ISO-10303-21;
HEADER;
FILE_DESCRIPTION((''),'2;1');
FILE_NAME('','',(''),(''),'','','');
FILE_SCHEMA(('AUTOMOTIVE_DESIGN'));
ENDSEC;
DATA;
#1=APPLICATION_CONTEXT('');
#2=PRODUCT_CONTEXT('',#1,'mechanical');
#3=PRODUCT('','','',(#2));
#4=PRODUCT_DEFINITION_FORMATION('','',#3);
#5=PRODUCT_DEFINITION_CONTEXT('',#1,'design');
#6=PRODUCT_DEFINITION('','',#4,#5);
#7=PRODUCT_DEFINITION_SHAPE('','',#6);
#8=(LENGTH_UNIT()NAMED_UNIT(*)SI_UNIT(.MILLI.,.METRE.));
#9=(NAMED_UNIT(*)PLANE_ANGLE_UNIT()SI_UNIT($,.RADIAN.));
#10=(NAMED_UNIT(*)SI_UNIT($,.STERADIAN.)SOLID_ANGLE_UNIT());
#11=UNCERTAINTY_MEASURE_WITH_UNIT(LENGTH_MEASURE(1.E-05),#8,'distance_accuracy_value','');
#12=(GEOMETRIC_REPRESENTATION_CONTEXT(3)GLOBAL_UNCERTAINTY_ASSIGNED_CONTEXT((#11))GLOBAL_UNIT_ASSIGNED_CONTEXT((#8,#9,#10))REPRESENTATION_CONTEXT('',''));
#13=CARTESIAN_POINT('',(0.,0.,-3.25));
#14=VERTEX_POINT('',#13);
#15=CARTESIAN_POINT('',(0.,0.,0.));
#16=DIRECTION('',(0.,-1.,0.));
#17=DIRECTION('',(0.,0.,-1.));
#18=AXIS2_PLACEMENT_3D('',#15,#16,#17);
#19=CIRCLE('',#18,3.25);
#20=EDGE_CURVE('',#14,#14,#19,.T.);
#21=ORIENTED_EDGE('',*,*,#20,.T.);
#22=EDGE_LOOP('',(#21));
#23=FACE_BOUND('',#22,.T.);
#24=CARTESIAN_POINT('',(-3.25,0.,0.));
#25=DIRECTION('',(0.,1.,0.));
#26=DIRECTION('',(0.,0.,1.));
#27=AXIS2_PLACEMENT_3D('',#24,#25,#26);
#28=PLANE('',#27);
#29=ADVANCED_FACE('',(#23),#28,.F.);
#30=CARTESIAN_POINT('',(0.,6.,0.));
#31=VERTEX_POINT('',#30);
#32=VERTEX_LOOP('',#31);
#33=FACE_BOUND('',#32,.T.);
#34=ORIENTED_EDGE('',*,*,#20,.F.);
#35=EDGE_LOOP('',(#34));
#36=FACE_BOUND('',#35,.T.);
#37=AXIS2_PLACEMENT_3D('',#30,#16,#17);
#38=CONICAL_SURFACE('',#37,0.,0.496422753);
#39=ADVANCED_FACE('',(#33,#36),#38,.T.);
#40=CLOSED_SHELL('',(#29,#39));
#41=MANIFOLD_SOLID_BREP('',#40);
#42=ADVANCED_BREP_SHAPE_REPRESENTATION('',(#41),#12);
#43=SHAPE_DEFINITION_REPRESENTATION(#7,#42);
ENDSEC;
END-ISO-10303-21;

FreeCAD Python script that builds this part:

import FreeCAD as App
import Part
import Sketcher

doc = App.newDocument("Part")
body = doc.addObject("PartDesign::Body", "Body")

# Sketch on XY plane
sketch1 = body.newObject("Sketcher::SketchObject", "Sketch")
sketch1.AttachmentSupport = (doc.getObject("XY_Plane"), [""])
sketch1.MapMode = "FlatFace"
sketch1.addGeometry(Part.LineSegment(App.Vector(0, 0, 0), App.Vector(0, 6, 0)), False)
sketch1.addGeometry(Part.LineSegment(App.Vector(0, 6, 0), App.Vector(-3.25, 0, 0)), False)
sketch1.addGeometry(Part.LineSegment(App.Vector(-3.25, 0, 0), App.Vector(0, 0, 0)), False)
sketch1.addConstraint(Sketcher.Constraint("Coincident", 0, 2, 1, 1))
sketch1.addConstraint(Sketcher.Constraint("Coincident", 1, 2, 2, 1))
sketch1.addConstraint(Sketcher.Constraint("Coincident", 2, 2, 0, 1))
sketch1.addConstraint(Sketcher.Constraint("Vertical", 0))
sketch1.addConstraint(Sketcher.Constraint("Horizontal", 2))
sketch1.addConstraint(Sketcher.Constraint("Coincident", 2, 2, -1, 1))
sketch1.addConstraint(Sketcher.Constraint("DistanceY", 0, 1, 0, 2, 6.0))
sketch1.addConstraint(Sketcher.Constraint("DistanceX", 2, 1, 2, 2, 3.25))
revolution = body.newObject("PartDesign::Revolution", "Revolution")
revolution.Profile = sketch1
revolution.ReferenceAxis = (sketch1, ["V_Axis"])
revolution.Angle = 360

doc.recompute()
